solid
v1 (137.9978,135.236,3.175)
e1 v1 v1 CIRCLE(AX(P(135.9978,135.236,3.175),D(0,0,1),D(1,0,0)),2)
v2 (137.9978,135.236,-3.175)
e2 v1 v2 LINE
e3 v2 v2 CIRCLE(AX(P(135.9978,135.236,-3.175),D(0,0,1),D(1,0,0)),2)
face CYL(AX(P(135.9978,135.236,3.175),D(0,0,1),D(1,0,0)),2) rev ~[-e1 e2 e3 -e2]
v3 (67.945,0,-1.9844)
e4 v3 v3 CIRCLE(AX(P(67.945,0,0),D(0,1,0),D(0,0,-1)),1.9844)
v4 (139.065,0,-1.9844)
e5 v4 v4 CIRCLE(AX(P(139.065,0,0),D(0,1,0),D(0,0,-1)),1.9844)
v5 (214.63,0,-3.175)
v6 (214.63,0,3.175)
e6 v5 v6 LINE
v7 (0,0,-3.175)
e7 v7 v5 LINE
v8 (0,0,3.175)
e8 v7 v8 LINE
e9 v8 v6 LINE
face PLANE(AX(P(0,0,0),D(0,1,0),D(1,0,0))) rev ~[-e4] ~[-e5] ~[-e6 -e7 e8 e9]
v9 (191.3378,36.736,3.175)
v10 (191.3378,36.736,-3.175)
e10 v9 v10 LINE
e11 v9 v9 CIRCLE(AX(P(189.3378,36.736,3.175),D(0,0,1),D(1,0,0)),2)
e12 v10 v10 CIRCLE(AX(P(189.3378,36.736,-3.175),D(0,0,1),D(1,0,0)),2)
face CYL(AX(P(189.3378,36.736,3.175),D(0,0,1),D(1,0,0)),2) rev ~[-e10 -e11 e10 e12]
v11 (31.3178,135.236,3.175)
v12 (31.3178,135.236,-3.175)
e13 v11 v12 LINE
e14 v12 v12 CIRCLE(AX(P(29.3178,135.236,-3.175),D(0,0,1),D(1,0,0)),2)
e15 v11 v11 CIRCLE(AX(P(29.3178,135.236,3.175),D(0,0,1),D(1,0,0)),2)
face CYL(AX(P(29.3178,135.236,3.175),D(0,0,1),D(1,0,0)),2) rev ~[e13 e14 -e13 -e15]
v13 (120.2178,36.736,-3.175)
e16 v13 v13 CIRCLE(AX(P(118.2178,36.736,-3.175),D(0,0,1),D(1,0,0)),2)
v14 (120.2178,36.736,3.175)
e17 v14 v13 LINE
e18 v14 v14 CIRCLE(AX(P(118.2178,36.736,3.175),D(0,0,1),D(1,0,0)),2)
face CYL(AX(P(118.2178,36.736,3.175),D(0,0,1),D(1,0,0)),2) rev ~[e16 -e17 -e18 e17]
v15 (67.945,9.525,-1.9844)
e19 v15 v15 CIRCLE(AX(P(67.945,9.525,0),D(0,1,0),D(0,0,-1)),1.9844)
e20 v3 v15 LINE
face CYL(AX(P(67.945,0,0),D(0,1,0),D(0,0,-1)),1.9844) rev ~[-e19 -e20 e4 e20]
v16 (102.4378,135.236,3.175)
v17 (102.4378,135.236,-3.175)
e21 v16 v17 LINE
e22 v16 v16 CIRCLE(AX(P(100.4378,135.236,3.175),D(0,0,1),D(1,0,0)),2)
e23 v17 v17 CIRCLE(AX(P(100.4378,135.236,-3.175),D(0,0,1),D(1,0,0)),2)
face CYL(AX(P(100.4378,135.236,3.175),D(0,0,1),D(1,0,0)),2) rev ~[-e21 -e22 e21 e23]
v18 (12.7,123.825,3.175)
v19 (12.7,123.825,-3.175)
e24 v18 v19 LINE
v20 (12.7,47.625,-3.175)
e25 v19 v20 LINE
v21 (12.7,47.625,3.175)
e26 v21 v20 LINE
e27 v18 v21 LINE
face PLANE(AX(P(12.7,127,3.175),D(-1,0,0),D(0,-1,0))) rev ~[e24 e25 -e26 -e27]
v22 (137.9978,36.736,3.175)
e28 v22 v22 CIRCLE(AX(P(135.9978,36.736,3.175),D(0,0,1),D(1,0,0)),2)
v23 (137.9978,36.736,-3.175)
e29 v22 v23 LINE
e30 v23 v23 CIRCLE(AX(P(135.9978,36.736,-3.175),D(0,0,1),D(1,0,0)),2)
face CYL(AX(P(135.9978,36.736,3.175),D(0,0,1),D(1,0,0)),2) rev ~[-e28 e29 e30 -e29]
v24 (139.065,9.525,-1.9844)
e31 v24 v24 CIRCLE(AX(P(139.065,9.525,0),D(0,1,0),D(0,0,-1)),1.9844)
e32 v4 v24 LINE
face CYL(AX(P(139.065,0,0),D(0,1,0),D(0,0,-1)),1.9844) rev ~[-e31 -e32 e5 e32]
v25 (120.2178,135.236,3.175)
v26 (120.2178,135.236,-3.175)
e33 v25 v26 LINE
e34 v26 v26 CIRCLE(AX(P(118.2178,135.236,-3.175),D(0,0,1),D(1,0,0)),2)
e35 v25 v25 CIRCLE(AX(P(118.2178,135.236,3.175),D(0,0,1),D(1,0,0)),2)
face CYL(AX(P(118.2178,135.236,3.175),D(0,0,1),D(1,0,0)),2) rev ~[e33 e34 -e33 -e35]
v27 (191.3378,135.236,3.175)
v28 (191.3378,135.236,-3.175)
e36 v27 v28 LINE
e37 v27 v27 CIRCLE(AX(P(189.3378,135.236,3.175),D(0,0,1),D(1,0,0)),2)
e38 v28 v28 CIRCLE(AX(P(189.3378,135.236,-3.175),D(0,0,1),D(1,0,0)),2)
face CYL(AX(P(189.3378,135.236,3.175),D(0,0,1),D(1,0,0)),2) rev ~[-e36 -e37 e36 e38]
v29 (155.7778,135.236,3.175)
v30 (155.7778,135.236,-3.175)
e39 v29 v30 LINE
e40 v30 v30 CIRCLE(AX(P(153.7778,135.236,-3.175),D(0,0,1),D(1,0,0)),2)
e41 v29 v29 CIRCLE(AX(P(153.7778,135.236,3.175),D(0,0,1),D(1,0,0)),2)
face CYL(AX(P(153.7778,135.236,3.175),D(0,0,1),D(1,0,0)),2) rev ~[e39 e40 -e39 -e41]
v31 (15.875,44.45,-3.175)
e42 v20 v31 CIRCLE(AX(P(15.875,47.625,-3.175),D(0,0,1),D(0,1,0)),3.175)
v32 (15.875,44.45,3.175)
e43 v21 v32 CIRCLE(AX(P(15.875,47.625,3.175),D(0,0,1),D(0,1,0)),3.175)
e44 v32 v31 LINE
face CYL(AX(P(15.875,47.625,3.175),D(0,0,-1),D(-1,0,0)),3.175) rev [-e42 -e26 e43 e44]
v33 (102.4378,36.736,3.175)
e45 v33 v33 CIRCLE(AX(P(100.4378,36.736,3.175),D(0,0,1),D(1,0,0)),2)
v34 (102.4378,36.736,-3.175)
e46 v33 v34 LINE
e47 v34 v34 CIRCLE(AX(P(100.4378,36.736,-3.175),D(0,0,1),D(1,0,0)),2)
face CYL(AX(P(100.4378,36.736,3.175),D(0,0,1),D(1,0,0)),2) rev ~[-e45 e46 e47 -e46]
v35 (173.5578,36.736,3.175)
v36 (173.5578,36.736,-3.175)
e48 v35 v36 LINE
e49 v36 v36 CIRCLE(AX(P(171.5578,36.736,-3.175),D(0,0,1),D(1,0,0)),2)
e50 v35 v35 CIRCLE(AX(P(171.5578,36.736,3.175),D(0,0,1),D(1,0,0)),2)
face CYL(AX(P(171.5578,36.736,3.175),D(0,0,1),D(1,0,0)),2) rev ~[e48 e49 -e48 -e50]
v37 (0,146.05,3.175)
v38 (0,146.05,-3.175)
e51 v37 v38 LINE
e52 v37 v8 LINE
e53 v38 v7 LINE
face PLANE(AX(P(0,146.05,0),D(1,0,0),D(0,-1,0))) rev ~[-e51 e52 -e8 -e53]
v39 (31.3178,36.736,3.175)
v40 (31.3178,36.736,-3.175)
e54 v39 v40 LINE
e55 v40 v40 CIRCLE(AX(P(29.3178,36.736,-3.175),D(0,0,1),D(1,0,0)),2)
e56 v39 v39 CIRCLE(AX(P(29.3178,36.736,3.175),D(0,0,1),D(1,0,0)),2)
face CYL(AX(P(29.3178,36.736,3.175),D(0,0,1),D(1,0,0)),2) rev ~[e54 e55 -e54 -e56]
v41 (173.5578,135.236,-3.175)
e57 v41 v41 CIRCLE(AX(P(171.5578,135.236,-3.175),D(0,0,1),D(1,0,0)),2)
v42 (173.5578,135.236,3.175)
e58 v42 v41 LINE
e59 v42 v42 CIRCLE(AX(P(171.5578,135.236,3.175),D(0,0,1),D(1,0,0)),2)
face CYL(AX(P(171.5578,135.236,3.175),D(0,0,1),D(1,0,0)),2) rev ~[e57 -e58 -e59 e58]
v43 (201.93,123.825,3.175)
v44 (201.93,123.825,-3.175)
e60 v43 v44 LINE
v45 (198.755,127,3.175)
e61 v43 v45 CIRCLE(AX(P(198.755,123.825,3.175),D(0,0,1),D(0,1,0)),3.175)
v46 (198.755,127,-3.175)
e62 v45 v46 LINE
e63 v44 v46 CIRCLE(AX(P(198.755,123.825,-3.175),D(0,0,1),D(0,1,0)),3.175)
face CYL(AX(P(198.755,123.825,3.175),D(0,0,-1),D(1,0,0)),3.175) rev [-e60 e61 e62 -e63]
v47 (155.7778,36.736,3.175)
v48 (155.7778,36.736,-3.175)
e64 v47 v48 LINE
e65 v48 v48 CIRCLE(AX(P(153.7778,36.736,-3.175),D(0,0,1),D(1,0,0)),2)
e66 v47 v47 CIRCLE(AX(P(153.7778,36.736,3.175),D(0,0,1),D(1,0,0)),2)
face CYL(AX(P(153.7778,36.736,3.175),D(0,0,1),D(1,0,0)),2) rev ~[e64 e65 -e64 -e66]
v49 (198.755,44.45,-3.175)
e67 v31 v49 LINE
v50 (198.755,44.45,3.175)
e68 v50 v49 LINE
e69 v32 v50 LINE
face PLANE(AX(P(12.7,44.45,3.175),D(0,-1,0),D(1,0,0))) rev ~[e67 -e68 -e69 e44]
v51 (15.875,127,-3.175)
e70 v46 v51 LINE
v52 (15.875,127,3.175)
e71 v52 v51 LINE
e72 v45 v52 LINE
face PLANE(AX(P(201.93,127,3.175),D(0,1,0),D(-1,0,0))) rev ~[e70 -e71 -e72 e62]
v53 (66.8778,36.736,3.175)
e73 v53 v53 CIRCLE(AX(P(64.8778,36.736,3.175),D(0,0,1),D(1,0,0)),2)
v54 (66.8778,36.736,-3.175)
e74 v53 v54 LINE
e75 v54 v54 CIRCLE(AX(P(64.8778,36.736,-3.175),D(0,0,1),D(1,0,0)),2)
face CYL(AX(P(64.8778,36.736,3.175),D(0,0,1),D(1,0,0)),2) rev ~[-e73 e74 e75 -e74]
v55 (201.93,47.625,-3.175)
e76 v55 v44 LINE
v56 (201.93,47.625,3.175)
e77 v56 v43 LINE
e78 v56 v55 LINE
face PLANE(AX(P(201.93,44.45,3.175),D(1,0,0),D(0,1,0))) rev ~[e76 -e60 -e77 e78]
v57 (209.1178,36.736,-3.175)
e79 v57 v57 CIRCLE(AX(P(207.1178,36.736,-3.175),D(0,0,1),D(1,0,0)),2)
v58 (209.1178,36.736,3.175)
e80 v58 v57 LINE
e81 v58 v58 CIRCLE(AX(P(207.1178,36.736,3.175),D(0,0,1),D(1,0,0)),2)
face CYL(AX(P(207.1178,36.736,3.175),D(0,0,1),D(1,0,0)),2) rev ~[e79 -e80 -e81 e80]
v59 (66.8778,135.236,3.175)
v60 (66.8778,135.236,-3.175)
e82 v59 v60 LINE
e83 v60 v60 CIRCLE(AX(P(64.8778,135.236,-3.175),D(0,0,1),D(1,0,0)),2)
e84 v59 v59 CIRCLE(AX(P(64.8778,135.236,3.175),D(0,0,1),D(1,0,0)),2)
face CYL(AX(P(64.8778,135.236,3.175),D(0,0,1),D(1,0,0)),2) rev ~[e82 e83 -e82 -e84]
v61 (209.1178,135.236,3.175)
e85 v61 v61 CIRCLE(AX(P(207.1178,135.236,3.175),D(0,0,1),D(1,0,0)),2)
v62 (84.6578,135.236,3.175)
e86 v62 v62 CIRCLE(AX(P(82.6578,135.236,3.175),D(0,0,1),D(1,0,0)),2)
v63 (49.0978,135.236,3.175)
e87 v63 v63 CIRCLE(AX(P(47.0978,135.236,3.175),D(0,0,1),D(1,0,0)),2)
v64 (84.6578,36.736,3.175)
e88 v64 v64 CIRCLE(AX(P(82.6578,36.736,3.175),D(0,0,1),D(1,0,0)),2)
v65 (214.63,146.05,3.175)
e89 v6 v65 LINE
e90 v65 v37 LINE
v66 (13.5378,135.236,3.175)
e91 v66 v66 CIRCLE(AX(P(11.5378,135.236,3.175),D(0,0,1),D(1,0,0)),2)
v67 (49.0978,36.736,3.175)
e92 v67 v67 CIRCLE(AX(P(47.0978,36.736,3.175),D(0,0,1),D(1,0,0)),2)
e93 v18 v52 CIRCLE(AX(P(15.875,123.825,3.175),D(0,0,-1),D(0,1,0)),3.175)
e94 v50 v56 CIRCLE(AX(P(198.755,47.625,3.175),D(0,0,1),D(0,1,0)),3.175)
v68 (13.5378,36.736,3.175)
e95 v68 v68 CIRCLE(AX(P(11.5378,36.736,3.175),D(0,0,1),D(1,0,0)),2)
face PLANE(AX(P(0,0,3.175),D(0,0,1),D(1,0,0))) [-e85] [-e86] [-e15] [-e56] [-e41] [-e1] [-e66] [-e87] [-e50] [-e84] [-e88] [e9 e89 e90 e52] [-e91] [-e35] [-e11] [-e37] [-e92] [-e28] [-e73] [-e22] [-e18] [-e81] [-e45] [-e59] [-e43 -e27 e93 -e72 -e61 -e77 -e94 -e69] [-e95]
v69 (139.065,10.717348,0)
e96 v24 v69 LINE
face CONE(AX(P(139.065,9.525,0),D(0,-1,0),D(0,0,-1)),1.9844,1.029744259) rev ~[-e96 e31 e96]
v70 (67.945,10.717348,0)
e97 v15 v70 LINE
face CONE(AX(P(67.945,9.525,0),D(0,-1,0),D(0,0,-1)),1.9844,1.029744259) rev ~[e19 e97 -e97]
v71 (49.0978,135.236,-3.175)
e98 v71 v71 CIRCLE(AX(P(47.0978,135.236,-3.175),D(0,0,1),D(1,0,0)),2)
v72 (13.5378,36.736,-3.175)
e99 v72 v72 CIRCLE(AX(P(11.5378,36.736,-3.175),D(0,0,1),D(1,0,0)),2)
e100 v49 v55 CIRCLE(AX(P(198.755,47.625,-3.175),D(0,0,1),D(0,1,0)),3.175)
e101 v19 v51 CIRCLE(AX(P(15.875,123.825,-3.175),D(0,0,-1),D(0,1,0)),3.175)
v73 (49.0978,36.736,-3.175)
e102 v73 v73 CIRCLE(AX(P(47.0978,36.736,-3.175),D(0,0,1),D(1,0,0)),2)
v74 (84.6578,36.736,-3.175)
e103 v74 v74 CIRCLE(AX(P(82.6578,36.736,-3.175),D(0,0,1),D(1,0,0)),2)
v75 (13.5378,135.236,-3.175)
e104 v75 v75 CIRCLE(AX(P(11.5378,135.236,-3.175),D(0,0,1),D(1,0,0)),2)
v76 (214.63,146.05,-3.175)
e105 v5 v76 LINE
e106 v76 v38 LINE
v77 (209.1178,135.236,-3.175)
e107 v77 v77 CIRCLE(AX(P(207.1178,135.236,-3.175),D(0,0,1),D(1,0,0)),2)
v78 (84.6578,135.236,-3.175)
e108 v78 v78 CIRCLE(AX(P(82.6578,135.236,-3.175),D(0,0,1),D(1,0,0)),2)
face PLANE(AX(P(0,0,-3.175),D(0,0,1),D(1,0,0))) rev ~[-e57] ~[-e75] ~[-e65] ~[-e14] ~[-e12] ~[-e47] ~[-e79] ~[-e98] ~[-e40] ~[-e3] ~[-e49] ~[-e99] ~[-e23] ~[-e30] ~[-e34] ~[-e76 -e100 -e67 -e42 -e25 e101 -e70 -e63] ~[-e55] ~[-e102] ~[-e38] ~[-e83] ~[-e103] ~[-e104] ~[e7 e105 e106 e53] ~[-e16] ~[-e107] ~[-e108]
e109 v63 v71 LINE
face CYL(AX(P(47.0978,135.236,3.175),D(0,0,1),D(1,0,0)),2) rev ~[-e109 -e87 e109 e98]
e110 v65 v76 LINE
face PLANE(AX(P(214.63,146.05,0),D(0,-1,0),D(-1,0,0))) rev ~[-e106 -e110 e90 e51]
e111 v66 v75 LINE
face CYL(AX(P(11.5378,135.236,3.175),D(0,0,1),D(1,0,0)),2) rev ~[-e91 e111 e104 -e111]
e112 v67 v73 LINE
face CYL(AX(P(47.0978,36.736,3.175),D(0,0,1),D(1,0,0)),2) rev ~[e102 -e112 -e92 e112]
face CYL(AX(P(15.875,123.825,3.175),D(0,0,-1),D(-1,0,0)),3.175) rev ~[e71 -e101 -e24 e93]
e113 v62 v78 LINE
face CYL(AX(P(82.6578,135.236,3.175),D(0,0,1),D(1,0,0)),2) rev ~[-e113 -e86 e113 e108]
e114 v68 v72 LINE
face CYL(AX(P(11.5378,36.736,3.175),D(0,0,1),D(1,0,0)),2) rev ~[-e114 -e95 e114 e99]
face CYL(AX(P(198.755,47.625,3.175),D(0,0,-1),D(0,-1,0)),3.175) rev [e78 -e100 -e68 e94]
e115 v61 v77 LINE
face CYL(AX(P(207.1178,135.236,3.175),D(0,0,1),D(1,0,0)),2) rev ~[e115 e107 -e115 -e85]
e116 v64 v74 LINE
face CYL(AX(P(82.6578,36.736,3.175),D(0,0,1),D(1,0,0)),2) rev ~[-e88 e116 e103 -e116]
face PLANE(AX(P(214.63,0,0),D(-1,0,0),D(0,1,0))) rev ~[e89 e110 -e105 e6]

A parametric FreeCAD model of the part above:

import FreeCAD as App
import Part
import Sketcher

V = App.Vector
Q = App.Units.Quantity


def edges_at(feature, points):
    """Names of the edges that pass closest to the given points."""
    edges = feature.Shape.Edges
    near = lambda p: min(range(len(edges)), key=lambda i: edges[i].distToShape(Part.Vertex(*p))[0])
    return sorted({f"Edge{near(p) + 1}" for p in points})

doc = App.newDocument("Part")
body = doc.addObject("PartDesign::Body", "Body")

# Sketch on XY plane
sketch1 = body.newObject("Sketcher::SketchObject", "Sketch")
sketch1.AttachmentSupport = (doc.getObject("XY_Plane"), [""])
sketch1.MapMode = "FlatFace"
sketch1.addGeometry([
    Part.LineSegment(V(0, 146, 0), V(0, 0, 0)),
    Part.LineSegment(V(0, 0, 0), V(215, 0, 0)),
    Part.LineSegment(V(215, 0, 0), V(215, 146, 0)),
    Part.LineSegment(V(215, 146, 0), V(0, 146, 0)),
], False)
sketch1.addConstraint([
    Sketcher.Constraint("Coincident", 0, 2, 1, 1),
    Sketcher.Constraint("Coincident", 1, 2, 2, 1),
    Sketcher.Constraint("Coincident", 2, 2, 3, 1),
    Sketcher.Constraint("Coincident", 3, 2, 0, 1),
    Sketcher.Constraint("Vertical", 0),
    Sketcher.Constraint("Horizontal", 1),
    Sketcher.Constraint("Vertical", 2),
    Sketcher.Constraint("Horizontal", 3),
    Sketcher.Constraint("Coincident", 0, 2, -1, 1),
    Sketcher.Constraint("DistanceX", 1, 1, 1, 2, Q("8.45 in")),
    Sketcher.Constraint("DistanceY", 0, 2, 0, 1, Q("5.75 in")),
])
pad1 = body.newObject("PartDesign::Pad", "Pad")
pad1.Profile = sketch1
pad1.Length = Q("0.25 in")
pad1.Midplane = True

# Sketch on XY plane
sketch2 = body.newObject("Sketcher::SketchObject", "Sketch001")
sketch2.AttachmentSupport = (doc.getObject("XY_Plane"), [""])
sketch2.MapMode = "FlatFace"
sketch2.AttachmentOffset = App.Placement(V(0, 0, 0.125 * 25.4), App.Rotation())
sketch2.addGeometry([
    Part.Circle(V(11.5, 135.2, 0), V(0, 0, 1), 2),
    Part.Circle(V(11.5, 36.7, 0), V(0, 0, 1), 2),
], False)
sketch2.addConstraint([
    Sketcher.Constraint("Equal", 0, 1),
    Sketcher.Constraint("Vertical", 0, 3, 1, 3),
    Sketcher.Constraint("Diameter", 0, 4.0),
    Sketcher.Constraint("DistanceY", 1, 3, 0, 3, 98.5),
    Sketcher.Constraint("DistanceY", -1, 1, 1, 3, Q("1.4463 in")),
    Sketcher.Constraint("DistanceX", -1, 1, 0, 3, 11.5378),
])
pocket1 = body.newObject("PartDesign::Pocket", "Pocket")
pocket1.Profile = sketch2
pocket1.Length = Q("0.375 in")
doc.recompute()

linearpattern = body.newObject("PartDesign::LinearPattern", "LinearPattern")
linearpattern.Originals = [pocket1]
linearpattern.Direction = (doc.getObject("X_Axis"), [""])
linearpattern.Mode = "offset"
linearpattern.Offset = Q("0.7 in")
linearpattern.Occurrences = 12
body.Tip = linearpattern

# Sketch on XY plane
sketch3 = body.newObject("Sketcher::SketchObject", "Sketch002")
sketch3.AttachmentSupport = (doc.getObject("XY_Plane"), [""])
sketch3.MapMode = "FlatFace"
sketch3.AttachmentOffset = App.Placement(V(0, 0, 0.125 * 25.4), App.Rotation())
sketch3.addGeometry([
    Part.LineSegment(V(13, 127, 0), V(13, 44, 0)),
    Part.LineSegment(V(13, 44, 0), V(202, 44, 0)),
    Part.LineSegment(V(202, 44, 0), V(202, 127, 0)),
    Part.LineSegment(V(202, 127, 0), V(13, 127, 0)),
], False)
sketch3.addConstraint([
    Sketcher.Constraint("Coincident", 0, 2, 1, 1),
    Sketcher.Constraint("Coincident", 1, 2, 2, 1),
    Sketcher.Constraint("Coincident", 2, 2, 3, 1),
    Sketcher.Constraint("Coincident", 3, 2, 0, 1),
    Sketcher.Constraint("Vertical", 0),
    Sketcher.Constraint("Horizontal", 1),
    Sketcher.Constraint("Vertical", 2),
    Sketcher.Constraint("Horizontal", 3),
    Sketcher.Constraint("DistanceX", -1, 1, 0, 2, Q("0.5 in")),
    Sketcher.Constraint("DistanceY", -1, 1, 0, 2, Q("1.75 in")),
    Sketcher.Constraint("DistanceY", -1, 1, 2, 2, Q("5 in")),
    Sketcher.Constraint("DistanceX", 1, 1, 1, 2, Q("7.45 in")),
])
pocket2 = body.newObject("PartDesign::Pocket", "Pocket001")
pocket2.Profile = sketch3
pocket2.Type = "ThroughAll"
doc.recompute()

fillet = body.newObject("PartDesign::Fillet", "Fillet")
fillet.Base = (pocket2, edges_at(pocket2, [
    (12.7, 44.45, 0),
    (12.7, 127, 0),
    (201.93, 44.45, 0),
    (201.93, 127, 0),
]))
fillet.Radius = Q("0.125 in")

# Sketch on XZ plane
sketch4 = body.newObject("Sketcher::SketchObject", "Sketch003")
sketch4.AttachmentSupport = (doc.getObject("XZ_Plane"), [""])
sketch4.MapMode = "FlatFace"
sketch4.addGeometry([
    Part.Circle(V(67.9, 0, 0), V(0, 0, 1), 2),
    Part.Circle(V(139.1, 0, 0), V(0, 0, 1), 2),
], False)
sketch4.addConstraint([
    Sketcher.Constraint("Equal", 0, 1),
    Sketcher.Constraint("PointOnObject", 0, 3, -1),
    Sketcher.Constraint("PointOnObject", 1, 3, -1),
    Sketcher.Constraint("Diameter", 0, Q("0.156252 in")),
    Sketcher.Constraint("DistanceX", 0, 3, 1, 3, Q("2.8 in")),
    Sketcher.Constraint("DistanceX", -1, 1, 0, 3, Q("2.675 in")),
])
doc.recompute()
hole = body.newObject("PartDesign::Hole", "Hole")
hole.Profile = sketch4
hole.ThreadType = "None"
hole.Diameter = Q("0.156252 in")
hole.DepthType = "Dimension"
hole.Depth = Q("0.375 in")
hole.DrillPoint = "Angled"
hole.DrillPointAngle = 118

doc.recompute()
